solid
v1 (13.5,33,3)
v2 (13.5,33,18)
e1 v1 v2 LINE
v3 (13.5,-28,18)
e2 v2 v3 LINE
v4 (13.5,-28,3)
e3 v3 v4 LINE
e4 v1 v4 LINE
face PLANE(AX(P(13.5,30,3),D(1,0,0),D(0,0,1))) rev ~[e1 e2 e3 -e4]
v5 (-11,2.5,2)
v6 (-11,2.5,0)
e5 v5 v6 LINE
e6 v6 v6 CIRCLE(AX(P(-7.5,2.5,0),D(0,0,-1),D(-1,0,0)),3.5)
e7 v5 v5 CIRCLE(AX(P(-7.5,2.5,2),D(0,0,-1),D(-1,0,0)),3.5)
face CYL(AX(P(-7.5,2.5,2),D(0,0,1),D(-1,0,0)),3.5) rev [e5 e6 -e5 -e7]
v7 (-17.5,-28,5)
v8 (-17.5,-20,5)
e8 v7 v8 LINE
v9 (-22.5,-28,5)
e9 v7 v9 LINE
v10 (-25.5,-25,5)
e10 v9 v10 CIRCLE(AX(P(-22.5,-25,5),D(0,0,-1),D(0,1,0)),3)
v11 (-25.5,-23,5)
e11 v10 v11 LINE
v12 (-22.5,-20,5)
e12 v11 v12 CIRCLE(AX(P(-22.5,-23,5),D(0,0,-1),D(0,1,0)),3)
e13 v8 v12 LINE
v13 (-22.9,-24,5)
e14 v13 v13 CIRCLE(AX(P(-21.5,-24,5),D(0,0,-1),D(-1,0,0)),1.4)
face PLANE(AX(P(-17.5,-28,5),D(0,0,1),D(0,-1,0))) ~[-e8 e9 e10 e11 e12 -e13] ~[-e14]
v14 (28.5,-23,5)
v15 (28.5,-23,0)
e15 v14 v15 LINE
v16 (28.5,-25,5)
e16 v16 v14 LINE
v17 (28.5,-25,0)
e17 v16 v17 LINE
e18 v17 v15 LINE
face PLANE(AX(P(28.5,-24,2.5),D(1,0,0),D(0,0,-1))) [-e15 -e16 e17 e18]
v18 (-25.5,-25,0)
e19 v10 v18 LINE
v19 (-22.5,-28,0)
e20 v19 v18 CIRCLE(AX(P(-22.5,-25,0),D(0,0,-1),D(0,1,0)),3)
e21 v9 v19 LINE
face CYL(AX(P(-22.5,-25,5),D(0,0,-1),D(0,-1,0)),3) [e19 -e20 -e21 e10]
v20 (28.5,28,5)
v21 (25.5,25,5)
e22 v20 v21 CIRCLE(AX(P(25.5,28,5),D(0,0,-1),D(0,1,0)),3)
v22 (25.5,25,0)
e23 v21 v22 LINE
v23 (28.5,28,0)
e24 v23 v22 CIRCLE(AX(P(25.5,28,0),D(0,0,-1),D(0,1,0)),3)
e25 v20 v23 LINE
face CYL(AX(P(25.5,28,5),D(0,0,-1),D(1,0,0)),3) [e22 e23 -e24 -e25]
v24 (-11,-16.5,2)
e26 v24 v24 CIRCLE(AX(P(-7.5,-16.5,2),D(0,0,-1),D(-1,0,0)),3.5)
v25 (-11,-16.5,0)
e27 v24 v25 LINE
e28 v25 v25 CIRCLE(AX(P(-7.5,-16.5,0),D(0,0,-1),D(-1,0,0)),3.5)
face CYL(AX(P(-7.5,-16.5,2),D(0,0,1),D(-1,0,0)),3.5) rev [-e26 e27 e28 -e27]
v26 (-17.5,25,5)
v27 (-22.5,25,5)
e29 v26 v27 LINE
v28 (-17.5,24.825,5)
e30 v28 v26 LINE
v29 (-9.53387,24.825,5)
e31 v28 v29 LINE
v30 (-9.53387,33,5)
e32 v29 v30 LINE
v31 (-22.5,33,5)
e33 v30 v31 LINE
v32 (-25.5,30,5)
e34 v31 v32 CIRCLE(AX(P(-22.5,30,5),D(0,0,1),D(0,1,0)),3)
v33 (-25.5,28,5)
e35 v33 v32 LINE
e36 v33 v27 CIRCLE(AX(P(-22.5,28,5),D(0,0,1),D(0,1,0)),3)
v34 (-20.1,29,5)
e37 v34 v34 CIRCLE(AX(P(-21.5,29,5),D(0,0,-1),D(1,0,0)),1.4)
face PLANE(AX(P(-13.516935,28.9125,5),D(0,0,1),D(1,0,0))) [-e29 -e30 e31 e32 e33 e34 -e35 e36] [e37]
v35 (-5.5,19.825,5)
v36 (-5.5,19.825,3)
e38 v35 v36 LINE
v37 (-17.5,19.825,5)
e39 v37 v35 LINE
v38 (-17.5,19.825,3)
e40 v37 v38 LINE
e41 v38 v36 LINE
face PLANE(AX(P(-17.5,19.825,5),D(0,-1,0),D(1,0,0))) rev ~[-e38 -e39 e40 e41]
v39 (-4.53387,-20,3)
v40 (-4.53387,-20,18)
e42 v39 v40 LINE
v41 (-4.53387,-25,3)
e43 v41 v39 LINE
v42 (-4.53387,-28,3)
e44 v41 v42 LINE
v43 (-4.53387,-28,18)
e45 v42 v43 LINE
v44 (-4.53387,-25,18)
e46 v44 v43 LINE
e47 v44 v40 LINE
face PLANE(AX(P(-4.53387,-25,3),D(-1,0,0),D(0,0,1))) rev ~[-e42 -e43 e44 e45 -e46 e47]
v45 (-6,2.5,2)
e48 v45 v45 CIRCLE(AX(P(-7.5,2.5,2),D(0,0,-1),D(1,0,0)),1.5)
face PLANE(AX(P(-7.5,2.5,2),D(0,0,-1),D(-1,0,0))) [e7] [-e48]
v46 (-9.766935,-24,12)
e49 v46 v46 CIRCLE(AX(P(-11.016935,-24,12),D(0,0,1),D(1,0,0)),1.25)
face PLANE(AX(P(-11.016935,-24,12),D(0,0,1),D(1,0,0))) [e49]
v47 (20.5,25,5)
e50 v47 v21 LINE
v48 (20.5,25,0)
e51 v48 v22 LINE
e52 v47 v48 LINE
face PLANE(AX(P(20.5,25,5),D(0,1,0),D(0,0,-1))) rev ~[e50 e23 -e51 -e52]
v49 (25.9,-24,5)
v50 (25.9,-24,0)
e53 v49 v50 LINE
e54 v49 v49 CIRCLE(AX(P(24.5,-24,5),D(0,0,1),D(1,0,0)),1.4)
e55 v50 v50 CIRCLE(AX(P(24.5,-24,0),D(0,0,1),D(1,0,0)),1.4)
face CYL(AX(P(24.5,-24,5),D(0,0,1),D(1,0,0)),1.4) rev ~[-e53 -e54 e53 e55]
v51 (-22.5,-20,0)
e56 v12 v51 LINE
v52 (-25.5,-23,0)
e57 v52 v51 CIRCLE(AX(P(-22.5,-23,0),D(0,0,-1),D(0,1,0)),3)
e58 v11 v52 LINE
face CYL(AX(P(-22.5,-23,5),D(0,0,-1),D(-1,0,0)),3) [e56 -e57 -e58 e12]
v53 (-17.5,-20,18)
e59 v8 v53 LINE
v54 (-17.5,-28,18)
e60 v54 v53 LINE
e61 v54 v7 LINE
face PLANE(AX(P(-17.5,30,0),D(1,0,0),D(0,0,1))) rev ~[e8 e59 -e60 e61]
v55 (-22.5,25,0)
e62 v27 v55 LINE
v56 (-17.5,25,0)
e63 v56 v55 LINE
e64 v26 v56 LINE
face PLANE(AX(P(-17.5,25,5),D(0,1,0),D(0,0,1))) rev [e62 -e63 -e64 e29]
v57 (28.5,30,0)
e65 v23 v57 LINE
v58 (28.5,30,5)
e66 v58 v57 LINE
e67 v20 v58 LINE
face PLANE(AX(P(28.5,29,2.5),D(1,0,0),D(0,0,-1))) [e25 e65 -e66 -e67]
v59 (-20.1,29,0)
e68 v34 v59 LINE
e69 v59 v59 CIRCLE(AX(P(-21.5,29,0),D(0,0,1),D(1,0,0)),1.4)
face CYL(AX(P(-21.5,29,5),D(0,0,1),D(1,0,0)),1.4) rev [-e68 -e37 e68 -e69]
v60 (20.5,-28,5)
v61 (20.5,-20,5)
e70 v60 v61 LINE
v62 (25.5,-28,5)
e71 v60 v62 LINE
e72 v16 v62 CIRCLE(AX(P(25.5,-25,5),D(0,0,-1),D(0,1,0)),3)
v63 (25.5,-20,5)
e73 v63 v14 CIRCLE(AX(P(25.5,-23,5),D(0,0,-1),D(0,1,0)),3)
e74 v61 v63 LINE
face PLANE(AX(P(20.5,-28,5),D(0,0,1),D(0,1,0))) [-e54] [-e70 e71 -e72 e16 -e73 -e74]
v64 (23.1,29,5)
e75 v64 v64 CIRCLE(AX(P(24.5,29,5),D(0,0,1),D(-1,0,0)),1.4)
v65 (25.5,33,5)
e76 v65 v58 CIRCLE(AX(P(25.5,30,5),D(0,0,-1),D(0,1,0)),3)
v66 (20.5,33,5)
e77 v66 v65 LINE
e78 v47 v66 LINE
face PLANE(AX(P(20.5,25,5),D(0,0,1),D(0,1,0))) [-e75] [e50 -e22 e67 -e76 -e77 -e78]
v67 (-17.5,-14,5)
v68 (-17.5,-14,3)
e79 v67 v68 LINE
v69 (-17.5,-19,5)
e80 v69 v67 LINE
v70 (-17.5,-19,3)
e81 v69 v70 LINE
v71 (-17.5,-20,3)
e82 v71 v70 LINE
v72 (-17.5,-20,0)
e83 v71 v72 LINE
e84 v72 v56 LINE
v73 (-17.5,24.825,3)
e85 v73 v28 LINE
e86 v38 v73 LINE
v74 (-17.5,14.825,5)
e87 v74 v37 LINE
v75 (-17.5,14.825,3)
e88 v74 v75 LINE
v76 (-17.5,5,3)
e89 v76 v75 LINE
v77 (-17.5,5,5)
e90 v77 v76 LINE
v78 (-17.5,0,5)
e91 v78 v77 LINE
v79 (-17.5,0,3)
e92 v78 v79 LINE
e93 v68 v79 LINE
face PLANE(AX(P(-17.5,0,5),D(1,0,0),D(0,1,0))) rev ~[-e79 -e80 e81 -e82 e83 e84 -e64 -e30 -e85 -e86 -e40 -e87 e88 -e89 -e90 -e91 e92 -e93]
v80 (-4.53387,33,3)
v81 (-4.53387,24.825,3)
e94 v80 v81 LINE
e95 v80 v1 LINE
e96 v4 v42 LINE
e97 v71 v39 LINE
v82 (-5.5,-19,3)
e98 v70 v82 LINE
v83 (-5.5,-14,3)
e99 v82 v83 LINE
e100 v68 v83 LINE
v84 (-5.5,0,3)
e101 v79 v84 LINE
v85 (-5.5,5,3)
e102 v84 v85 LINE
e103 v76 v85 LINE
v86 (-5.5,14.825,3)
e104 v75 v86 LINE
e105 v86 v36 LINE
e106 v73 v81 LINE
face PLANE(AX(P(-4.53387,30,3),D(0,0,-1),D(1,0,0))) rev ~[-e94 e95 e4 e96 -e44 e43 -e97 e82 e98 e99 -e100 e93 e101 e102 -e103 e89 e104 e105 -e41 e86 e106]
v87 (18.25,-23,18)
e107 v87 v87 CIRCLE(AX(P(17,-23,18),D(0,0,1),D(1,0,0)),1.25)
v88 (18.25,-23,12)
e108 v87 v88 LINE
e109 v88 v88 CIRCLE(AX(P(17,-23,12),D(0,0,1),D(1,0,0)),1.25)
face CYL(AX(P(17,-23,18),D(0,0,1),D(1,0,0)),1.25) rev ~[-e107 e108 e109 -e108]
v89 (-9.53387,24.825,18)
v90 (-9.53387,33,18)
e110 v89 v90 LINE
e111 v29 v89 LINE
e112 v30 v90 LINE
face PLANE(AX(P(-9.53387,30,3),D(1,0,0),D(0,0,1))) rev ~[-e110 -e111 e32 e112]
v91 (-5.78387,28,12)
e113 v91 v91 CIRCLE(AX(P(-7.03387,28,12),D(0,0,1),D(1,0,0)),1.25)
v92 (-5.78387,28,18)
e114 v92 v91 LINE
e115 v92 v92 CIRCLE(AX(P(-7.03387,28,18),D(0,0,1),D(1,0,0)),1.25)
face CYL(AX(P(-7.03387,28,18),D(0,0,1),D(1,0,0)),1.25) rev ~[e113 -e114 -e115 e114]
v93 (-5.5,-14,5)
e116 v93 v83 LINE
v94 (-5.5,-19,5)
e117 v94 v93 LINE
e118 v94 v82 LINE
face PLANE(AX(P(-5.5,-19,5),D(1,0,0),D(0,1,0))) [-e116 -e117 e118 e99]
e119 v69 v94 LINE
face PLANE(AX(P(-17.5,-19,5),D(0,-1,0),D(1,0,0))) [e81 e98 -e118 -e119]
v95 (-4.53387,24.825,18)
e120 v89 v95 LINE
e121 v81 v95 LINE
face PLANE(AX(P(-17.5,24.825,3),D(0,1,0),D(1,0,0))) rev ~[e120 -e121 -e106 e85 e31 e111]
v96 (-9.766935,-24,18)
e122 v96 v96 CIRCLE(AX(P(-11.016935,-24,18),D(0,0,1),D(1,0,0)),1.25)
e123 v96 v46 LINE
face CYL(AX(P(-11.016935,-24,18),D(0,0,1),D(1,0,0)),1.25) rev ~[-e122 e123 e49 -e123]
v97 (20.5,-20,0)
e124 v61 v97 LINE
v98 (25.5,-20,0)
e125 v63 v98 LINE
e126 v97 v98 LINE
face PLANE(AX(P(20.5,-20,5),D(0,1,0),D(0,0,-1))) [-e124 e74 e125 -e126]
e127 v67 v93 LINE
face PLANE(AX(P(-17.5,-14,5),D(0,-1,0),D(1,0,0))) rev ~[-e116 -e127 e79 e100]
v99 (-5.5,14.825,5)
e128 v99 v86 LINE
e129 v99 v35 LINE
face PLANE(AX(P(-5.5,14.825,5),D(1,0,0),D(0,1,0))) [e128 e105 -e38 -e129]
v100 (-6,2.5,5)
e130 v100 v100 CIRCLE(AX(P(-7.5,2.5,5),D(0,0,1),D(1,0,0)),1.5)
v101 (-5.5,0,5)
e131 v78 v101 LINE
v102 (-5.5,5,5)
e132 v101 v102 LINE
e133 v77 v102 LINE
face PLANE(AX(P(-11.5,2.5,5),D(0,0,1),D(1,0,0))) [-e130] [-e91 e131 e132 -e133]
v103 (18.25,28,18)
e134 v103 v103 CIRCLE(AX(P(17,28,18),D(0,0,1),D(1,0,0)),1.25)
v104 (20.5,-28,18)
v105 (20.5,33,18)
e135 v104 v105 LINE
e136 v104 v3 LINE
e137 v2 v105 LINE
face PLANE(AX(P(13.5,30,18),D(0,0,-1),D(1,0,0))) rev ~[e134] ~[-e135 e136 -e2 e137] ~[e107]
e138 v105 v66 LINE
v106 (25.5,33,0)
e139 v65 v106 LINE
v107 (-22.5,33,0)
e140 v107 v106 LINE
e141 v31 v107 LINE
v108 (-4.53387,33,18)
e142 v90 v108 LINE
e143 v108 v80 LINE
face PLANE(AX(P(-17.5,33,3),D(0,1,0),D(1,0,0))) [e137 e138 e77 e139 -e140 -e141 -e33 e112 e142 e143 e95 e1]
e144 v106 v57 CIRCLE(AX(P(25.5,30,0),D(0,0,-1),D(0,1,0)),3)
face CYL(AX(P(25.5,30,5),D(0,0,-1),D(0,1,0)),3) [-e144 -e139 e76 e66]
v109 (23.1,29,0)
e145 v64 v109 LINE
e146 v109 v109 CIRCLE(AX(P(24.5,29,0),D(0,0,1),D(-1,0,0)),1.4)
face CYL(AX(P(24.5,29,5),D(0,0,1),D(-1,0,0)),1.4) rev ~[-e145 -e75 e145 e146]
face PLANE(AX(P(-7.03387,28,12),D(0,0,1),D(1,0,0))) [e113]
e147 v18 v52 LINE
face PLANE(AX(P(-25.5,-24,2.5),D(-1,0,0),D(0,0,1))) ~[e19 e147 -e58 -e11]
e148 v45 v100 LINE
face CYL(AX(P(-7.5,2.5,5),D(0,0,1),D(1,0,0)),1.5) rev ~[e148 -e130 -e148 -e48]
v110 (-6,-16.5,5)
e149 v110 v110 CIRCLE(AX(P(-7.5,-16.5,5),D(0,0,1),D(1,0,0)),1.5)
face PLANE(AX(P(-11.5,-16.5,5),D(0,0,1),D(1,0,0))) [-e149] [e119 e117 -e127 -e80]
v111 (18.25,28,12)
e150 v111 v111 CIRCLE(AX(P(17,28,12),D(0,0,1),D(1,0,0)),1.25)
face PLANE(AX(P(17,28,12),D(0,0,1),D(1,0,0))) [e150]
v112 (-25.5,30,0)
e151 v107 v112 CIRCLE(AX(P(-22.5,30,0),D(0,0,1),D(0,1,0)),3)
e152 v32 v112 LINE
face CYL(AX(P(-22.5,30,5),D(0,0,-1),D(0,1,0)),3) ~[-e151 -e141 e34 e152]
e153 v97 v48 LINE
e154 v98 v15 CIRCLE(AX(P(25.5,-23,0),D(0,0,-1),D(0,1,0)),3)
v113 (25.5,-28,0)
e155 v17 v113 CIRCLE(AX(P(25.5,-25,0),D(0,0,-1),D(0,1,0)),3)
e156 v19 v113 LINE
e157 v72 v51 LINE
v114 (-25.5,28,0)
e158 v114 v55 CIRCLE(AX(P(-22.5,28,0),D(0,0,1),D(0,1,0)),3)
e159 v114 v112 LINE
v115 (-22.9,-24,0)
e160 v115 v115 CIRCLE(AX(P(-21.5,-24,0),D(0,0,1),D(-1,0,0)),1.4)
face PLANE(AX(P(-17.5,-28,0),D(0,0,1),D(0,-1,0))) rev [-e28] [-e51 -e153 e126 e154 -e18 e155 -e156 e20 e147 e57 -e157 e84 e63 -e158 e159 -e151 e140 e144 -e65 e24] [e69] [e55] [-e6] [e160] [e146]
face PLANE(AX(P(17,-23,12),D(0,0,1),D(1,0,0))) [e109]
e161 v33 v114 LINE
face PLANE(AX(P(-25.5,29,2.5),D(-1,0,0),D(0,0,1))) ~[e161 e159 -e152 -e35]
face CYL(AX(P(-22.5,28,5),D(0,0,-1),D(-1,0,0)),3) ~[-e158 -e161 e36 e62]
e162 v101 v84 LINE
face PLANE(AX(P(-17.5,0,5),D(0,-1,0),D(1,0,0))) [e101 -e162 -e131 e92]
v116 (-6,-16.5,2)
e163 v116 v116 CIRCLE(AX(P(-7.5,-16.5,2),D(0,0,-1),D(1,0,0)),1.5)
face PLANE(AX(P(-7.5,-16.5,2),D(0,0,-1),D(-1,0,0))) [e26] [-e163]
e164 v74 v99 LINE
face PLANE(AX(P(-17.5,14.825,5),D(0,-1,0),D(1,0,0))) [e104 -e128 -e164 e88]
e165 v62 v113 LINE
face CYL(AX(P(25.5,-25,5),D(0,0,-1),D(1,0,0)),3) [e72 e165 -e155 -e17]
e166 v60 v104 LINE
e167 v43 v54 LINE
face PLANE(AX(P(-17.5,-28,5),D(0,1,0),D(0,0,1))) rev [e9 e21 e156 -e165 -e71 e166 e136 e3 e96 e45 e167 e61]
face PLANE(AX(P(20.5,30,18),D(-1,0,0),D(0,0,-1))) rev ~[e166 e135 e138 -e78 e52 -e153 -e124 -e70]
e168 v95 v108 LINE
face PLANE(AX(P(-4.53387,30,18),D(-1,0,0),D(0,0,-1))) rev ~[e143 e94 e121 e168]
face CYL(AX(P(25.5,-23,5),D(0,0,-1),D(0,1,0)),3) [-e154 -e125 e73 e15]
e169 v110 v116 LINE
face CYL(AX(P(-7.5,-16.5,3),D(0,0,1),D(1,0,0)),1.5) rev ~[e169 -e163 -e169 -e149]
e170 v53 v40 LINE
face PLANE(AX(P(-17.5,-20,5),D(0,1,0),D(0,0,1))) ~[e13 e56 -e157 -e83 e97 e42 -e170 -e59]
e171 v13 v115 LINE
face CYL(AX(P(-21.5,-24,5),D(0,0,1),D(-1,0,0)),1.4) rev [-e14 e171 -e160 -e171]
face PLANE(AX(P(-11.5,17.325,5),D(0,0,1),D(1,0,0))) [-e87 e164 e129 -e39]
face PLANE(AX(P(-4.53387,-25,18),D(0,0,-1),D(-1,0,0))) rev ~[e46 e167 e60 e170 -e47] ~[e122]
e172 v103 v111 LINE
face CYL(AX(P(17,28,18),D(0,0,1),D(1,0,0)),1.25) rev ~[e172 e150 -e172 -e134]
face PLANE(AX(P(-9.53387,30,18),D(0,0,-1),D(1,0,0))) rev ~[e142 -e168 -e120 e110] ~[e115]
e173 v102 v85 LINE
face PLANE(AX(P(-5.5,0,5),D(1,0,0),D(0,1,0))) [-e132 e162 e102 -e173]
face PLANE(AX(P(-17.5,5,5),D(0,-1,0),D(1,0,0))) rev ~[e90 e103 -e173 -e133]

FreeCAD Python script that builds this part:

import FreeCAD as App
import Part
import Sketcher

V = App.Vector
Q = App.Units.Quantity


def edges_at(feature, points):
    """Names of the edges that pass closest to the given points."""
    edges = feature.Shape.Edges
    near = lambda p: min(range(len(edges)), key=lambda i: edges[i].distToShape(Part.Vertex(*p))[0])
    return sorted({f"Edge{near(p) + 1}" for p in points})


def add_polygon(sketch, points):
    """Adds a closed chain of lines whose ends are joined by coincident constraints."""
    first, n = sketch.GeometryCount, len(points)
    for a, b in zip(points, points[1:] + points[:1]):
        sketch.addGeometry(Part.LineSegment(App.Vector(*a, 0), App.Vector(*b, 0)), False)
    for i in range(n):
        sketch.addConstraint(Sketcher.Constraint("Coincident", first + i, 2, first + (i + 1) % n, 1))

doc = App.newDocument("Part")
body = doc.addObject("PartDesign::Body", "Body")

# Sketch on XY plane
sketch1 = doc.addObject("Sketcher::SketchObject", "Sketch")
body.addObject(sketch1)
sketch1.AttachmentSupport = (doc.XY_Plane, [""])
sketch1.MapMode = "FlatFace"
add_polygon(sketch1, [(-17.5, 20), (-17.5, -20), (17.5, -20), (17.5, 20)])  # lines 0-3
sketch1.addConstraint(Sketcher.Constraint("Vertical", 0))
sketch1.addConstraint(Sketcher.Constraint("Horizontal", 1))
sketch1.addConstraint(Sketcher.Constraint("Vertical", 2))
sketch1.addConstraint(Sketcher.Constraint("Horizontal", 3))
sketch1.addConstraint(Sketcher.Constraint("Symmetric", 0, 2, 2, 2, -1, 1))
sketch1.addConstraint(Sketcher.Constraint("DistanceX", 1, 1, 1, 2, Q("35 mm")))
sketch1.addConstraint(Sketcher.Constraint("DistanceY", 0, 2, 0, 1, Q("40 mm")))
pad1 = doc.addObject("PartDesign::Pad", "Pad")
body.addObject(pad1)
pad1.Profile = sketch1
pad1.Length = 3

# Sketch on XY plane
sketch2 = doc.addObject("Sketcher::SketchObject", "Sketch001")
body.addObject(sketch2)
sketch2.AttachmentSupport = (doc.XY_Plane, [""])
sketch2.MapMode = "FlatFace"
sketch2.AttachmentOffset = App.Placement(V(0, 0, 3), App.Rotation())
sketch2.addGeometry(Part.Circle(V(-7.5, 634.376712, 0), V(0, 0, 1), 2.01318), False)
sketch2.addGeometry(Part.Circle(V(-7.023581, 615.376712, 0), V(0, 0, 1), 2.01318), False)
sketch2.addGeometry(Part.Circle(V(-7.5, 2.5, 0), V(0, 0, 1), 1.5), False)
sketch2.addGeometry(Part.Circle(V(-7.5, -16.5, 0), V(0, 0, 1), 1.5), False)
sketch2.addConstraint(Sketcher.Constraint("Equal", 0, 1))
sketch2.addConstraint(Sketcher.Constraint("Equal", 2, 3))
sketch2.addConstraint(Sketcher.Constraint("Vertical", 0, 3, 2, 3))
sketch2.addConstraint(Sketcher.Constraint("Vertical", 2, 3, 3, 3))
sketch2.addConstraint(Sketcher.Constraint("Diameter", 2, Q("3 mm")))
sketch2.addConstraint(Sketcher.Constraint("DistanceY", 1, 3, 0, 3, Q("19 mm")))
sketch2.addConstraint(Sketcher.Constraint("DistanceY", 3, 3, 2, 3, Q("19 mm")))
sketch2.addConstraint(Sketcher.Constraint("DistanceX", 0, 3, -1, 1, Q("7.5 mm")))
sketch2.addConstraint(Sketcher.Constraint("DistanceY", -1, 1, 2, 3, Q("2.5 mm")))
sketch2.addConstraint(Sketcher.Constraint("Diameter", 0, Q("4.026359 mm")))
sketch2.addConstraint(Sketcher.Constraint("DistanceY", -1, 1, 0, 3, Q("634.376712 mm")))
sketch2.addConstraint(Sketcher.Constraint("DistanceX", 1, 3, -1, 1, Q("7.023581 mm")))
pocket1 = doc.addObject("PartDesign::Pocket", "Pocket")
body.addObject(pocket1)
pocket1.Profile = sketch2
pocket1.Length = 10

# Sketch on XZ plane
sketch3 = doc.addObject("Sketcher::SketchObject", "Sketch002")
body.addObject(sketch3)
sketch3.AttachmentSupport = (doc.XZ_Plane, [""])
sketch3.MapMode = "FlatFace"
sketch3.AttachmentOffset = App.Placement(V(0, 0, 20), App.Rotation())
add_polygon(sketch3, [(-17.5, 3), (-17.5, 0), (17.5, 0), (17.5, 3)])  # lines 0-3
sketch3.addConstraint(Sketcher.Constraint("Vertical", 0))
sketch3.addConstraint(Sketcher.Constraint("Horizontal", 1))
sketch3.addConstraint(Sketcher.Constraint("Vertical", 2))
sketch3.addConstraint(Sketcher.Constraint("Horizontal", 3))
sketch3.addConstraint(Sketcher.Constraint("Symmetric", 0, 2, 1, 2, -1, 1))
sketch3.addConstraint(Sketcher.Constraint("DistanceX", 1, 1, 1, 2, Q("35 mm")))
sketch3.addConstraint(Sketcher.Constraint("DistanceY", 0, 2, 0, 1, Q("3 mm")))
pad2 = doc.addObject("PartDesign::Pad", "Pad001")
body.addObject(pad2)
pad2.Profile = sketch3
pad2.Length = 5

# Sketch on XY plane
sketch4 = doc.addObject("Sketcher::SketchObject", "Sketch003")
body.addObject(sketch4)
sketch4.AttachmentSupport = (doc.XY_Plane, [""])
sketch4.MapMode = "FlatFace"
sketch4.AttachmentOffset = App.Placement(V(0, 0, 3), App.Rotation())
add_polygon(sketch4, [(13.5, 20), (13.5, -25), (17.5, -25), (17.5, 20)])  # lines 0-3
add_polygon(sketch4, [(-17.5, -20), (-17.5, -25), (-4.53387, -25), (-4.53387, -20)])  # lines 4-7
sketch4.addConstraint(Sketcher.Constraint("Vertical", 0))
sketch4.addConstraint(Sketcher.Constraint("Horizontal", 1))
sketch4.addConstraint(Sketcher.Constraint("Vertical", 2))
sketch4.addConstraint(Sketcher.Constraint("Horizontal", 3))
sketch4.addConstraint(Sketcher.Constraint("Vertical", 4))
sketch4.addConstraint(Sketcher.Constraint("Horizontal", 5))
sketch4.addConstraint(Sketcher.Constraint("Vertical", 6))
sketch4.addConstraint(Sketcher.Constraint("Horizontal", 7))
sketch4.addConstraint(Sketcher.Constraint("Symmetric", 2, 2, 7, 2, -1, 1))
sketch4.addConstraint(Sketcher.Constraint("Horizontal", 1, 2, 4, 2))
sketch4.addConstraint(Sketcher.Constraint("DistanceX", 1, 1, 1, 2, Q("4 mm")))
sketch4.addConstraint(Sketcher.Constraint("DistanceY", 0, 2, 0, 1, Q("45 mm")))
sketch4.addConstraint(Sketcher.Constraint("DistanceY", 4, 2, 4, 1, Q("5 mm")))
sketch4.addConstraint(Sketcher.Constraint("DistanceX", 4, 2, 0, 2, Q("31 mm")))
sketch4.addConstraint(Sketcher.Constraint("DistanceX", 5, 1, 5, 2, Q("12.96613 mm")))
pad3 = doc.addObject("PartDesign::Pad", "Pad002")
body.addObject(pad3)
pad3.Profile = sketch4
pad3.Length = 15

# Sketch on XZ plane
sketch5 = doc.addObject("Sketcher::SketchObject", "Sketch004")
body.addObject(sketch5)
sketch5.AttachmentSupport = (doc.XZ_Plane, [""])
sketch5.MapMode = "FlatFace"
sketch5.AttachmentOffset = App.Placement(V(0, 0, -20), App.Rotation())
add_polygon(sketch5, [(17.5, 0), (-17.5, 0), (-17.5, 3), (13.5, 3), (13.5, 18), (17.5, 18)])  # lines 0-5
sketch5.addConstraint(Sketcher.Constraint("Horizontal", 0))
sketch5.addConstraint(Sketcher.Constraint("Vertical", 1))
sketch5.addConstraint(Sketcher.Constraint("Horizontal", 2))
sketch5.addConstraint(Sketcher.Constraint("Vertical", 3))
sketch5.addConstraint(Sketcher.Constraint("Horizontal", 4))
sketch5.addConstraint(Sketcher.Constraint("Vertical", 5))
sketch5.addConstraint(Sketcher.Constraint("Symmetric", 0, 2, 5, 2, -1, 1))
sketch5.addConstraint(Sketcher.Constraint("DistanceX", 0, 2, 0, 1, Q("35 mm")))
sketch5.addConstraint(Sketcher.Constraint("DistanceX", 2, 1, 2, 2, Q("31 mm")))
sketch5.addConstraint(Sketcher.Constraint("DistanceY", 1, 1, 1, 2, Q("3 mm")))
sketch5.addConstraint(Sketcher.Constraint("DistanceY", 3, 1, 3, 2, Q("15 mm")))
pad4 = doc.addObject("PartDesign::Pad", "Pad003")
body.addObject(pad4)
pad4.Profile = sketch5
pad4.Length = 10
pad4.Reversed = True

# Sketch on XY plane
sketch6 = doc.addObject("Sketcher::SketchObject", "Sketch005")
body.addObject(sketch6)
sketch6.AttachmentSupport = (doc.XY_Plane, [""])
sketch6.MapMode = "FlatFace"
sketch6.AttachmentOffset = App.Placement(V(0, 0, 3), App.Rotation())
add_polygon(sketch6, [(-9.53387, 30), (-9.53387, 24.825), (-4.53387, 24.825), (-4.53387, 30)])  # lines 0-3
sketch6.addConstraint(Sketcher.Constraint("Vertical", 0))
sketch6.addConstraint(Sketcher.Constraint("Horizontal", 1))
sketch6.addConstraint(Sketcher.Constraint("Vertical", 2))
sketch6.addConstraint(Sketcher.Constraint("Horizontal", 3))
sketch6.addConstraint(Sketcher.Constraint("DistanceX", 1, 1, 1, 2, Q("5 mm")))
sketch6.addConstraint(Sketcher.Constraint("DistanceY", -1, 1, 2, 2, Q("30 mm")))
sketch6.addConstraint(Sketcher.Constraint("DistanceY", 0, 2, 0, 1, Q("5.175 mm")))
sketch6.addConstraint(Sketcher.Constraint("DistanceX", 0, 2, -1, 1, Q("9.53387 mm")))
pad5 = doc.addObject("PartDesign::Pad", "Pad004")
body.addObject(pad5)
pad5.Profile = sketch6
pad5.Length = 15

# Sketch on YZ plane
sketch7 = doc.addObject("Sketcher::SketchObject", "Sketch006")
body.addObject(sketch7)
sketch7.AttachmentSupport = (doc.YZ_Plane, [""])
sketch7.MapMode = "FlatFace"
sketch7.AttachmentOffset = App.Placement(V(0, 0, 17.5), App.Rotation())
add_polygon(sketch7, [(30, 18), (-25, 18), (-25, 0), (30, 0)])  # lines 0-3
sketch7.addConstraint(Sketcher.Constraint("Horizontal", 0))
sketch7.addConstraint(Sketcher.Constraint("Vertical", 1))
sketch7.addConstraint(Sketcher.Constraint("Horizontal", 2))
sketch7.addConstraint(Sketcher.Constraint("Vertical", 3))
sketch7.addConstraint(Sketcher.Constraint("PointOnObject", 1, 2, -1))
sketch7.addConstraint(Sketcher.Constraint("DistanceX", 0, 2, 0, 1, Q("55 mm")))
sketch7.addConstraint(Sketcher.Constraint("DistanceY", 1, 2, 1, 1, Q("18 mm")))
sketch7.addConstraint(Sketcher.Constraint("DistanceX", 0, 2, -1, 1, Q("25 mm")))
pad6 = doc.addObject("PartDesign::Pad", "Pad005")
body.addObject(pad6)
pad6.Profile = sketch7
pad6.Length = 3

# Sketch on XZ plane
sketch8 = doc.addObject("Sketcher::SketchObject", "Sketch007")
body.addObject(sketch8)
sketch8.AttachmentSupport = (doc.XZ_Plane, [""])
sketch8.MapMode = "FlatFace"
sketch8.AttachmentOffset = App.Placement(V(0, 0, 25), App.Rotation())
add_polygon(sketch8, [(-17.5, 18), (-17.5, 0), (20.5, 0), (20.5, 18), (13.5, 18), (13.5, 3), (-4.53387, 3), (-4.53387, 18)])  # lines 0-7
sketch8.addConstraint(Sketcher.Constraint("Vertical", 0))
sketch8.addConstraint(Sketcher.Constraint("Horizontal", 1))
sketch8.addConstraint(Sketcher.Constraint("Vertical", 2))
sketch8.addConstraint(Sketcher.Constraint("Horizontal", 3))
sketch8.addConstraint(Sketcher.Constraint("Vertical", 4))
sketch8.addConstraint(Sketcher.Constraint("Horizontal", 5))
sketch8.addConstraint(Sketcher.Constraint("Vertical", 6))
sketch8.addConstraint(Sketcher.Constraint("Horizontal", 7))
sketch8.addConstraint(Sketcher.Constraint("PointOnObject", 0, 2, -1))
sketch8.addConstraint(Sketcher.Constraint("Horizontal", 3, 2, 6, 2))
sketch8.addConstraint(Sketcher.Constraint("DistanceX", 1, 1, 1, 2, Q("38 mm")))
sketch8.addConstraint(Sketcher.Constraint("DistanceX", 3, 2, 3, 1, Q("7 mm")))
sketch8.addConstraint(Sketcher.Constraint("DistanceY", 0, 2, 0, 1, Q("18 mm")))
sketch8.addConstraint(Sketcher.Constraint("DistanceY", 4, 2, 4, 1, Q("15 mm")))
sketch8.addConstraint(Sketcher.Constraint("DistanceX", 0, 2, -1, 1, Q("17.5 mm")))
sketch8.addConstraint(Sketcher.Constraint("DistanceX", 5, 2, 5, 1, Q("18.03387 mm")))
pad7 = doc.addObject("PartDesign::Pad", "Pad006")
body.addObject(pad7)
pad7.Profile = sketch8
pad7.Length = 3

# Sketch on XZ plane
sketch9 = doc.addObject("Sketcher::SketchObject", "Sketch008")
body.addObject(sketch9)
sketch9.AttachmentSupport = (doc.XZ_Plane, [""])
sketch9.MapMode = "FlatFace"
sketch9.AttachmentOffset = App.Placement(V(0, 0, -30), App.Rotation())
add_polygon(sketch9, [(13.5, 18), (20.5, 18), (20.5, 0), (-17.5, 0), (-17.5, 3), (-9.53387, 3), (-9.53387, 18), (-4.53387, 18), (-4.53387, 3), (13.5, 3)])  # lines 0-9
sketch9.addConstraint(Sketcher.Constraint("Horizontal", 0))
sketch9.addConstraint(Sketcher.Constraint("Vertical", 1))
sketch9.addConstraint(Sketcher.Constraint("Horizontal", 2))
sketch9.addConstraint(Sketcher.Constraint("Vertical", 3))
sketch9.addConstraint(Sketcher.Constraint("Horizontal", 4))
sketch9.addConstraint(Sketcher.Constraint("Vertical", 5))
sketch9.addConstraint(Sketcher.Constraint("Horizontal", 6))
sketch9.addConstraint(Sketcher.Constraint("Vertical", 7))
sketch9.addConstraint(Sketcher.Constraint("Horizontal", 8))
sketch9.addConstraint(Sketcher.Constraint("Vertical", 9))
sketch9.addConstraint(Sketcher.Constraint("PointOnObject", 1, 2, -1))
sketch9.addConstraint(Sketcher.Constraint("Horizontal", 0, 2, 5, 2))
sketch9.addConstraint(Sketcher.Constraint("Horizontal", 4, 2, 7, 2))
sketch9.addConstraint(Sketcher.Constraint("DistanceX", 0, 1, 0, 2, Q("7 mm")))
sketch9.addConstraint(Sketcher.Constraint("DistanceX", 2, 2, 2, 1, Q("38 mm")))
sketch9.addConstraint(Sketcher.Constraint("DistanceX", 6, 1, 6, 2, Q("5 mm")))
sketch9.addConstraint(Sketcher.Constraint("DistanceY", 1, 2, 1, 1, Q("18 mm")))
sketch9.addConstraint(Sketcher.Constraint("DistanceY", 3, 1, 3, 2, Q("3 mm")))
sketch9.addConstraint(Sketcher.Constraint("DistanceX", -1, 1, 0, 2, Q("20.5 mm")))
sketch9.addConstraint(Sketcher.Constraint("DistanceX", 4, 1, 4, 2, Q("7.96613 mm")))
pad8 = doc.addObject("PartDesign::Pad", "Pad007")
body.addObject(pad8)
pad8.Profile = sketch9
pad8.Length = 3
pad8.Reversed = True

# Sketch on XY plane
sketch10 = doc.addObject("Sketcher::SketchObject", "Sketch009")
body.addObject(sketch10)
sketch10.AttachmentSupport = (doc.XY_Plane, [""])
sketch10.MapMode = "FlatFace"
sketch10.AttachmentOffset = App.Placement(V(0, 0, 18), App.Rotation())
sketch10.addGeometry(Part.Circle(V(17, -23, 0), V(0, 0, 1), 1.25), False)
sketch10.addGeometry(Part.Circle(V(17, 28, 0), V(0, 0, 1), 1.25), False)
sketch10.addGeometry(Part.Circle(V(-11.016935, -24, 0), V(0, 0, 1), 1.25), False)
sketch10.addGeometry(Part.Circle(V(-7.03387, 28, 0), V(0, 0, 1), 1.25), False)
sketch10.addConstraint(Sketcher.Constraint("Equal", 0, 1))
sketch10.addConstraint(Sketcher.Constraint("Equal", 1, 2))
sketch10.addConstraint(Sketcher.Constraint("Equal", 2, 3))
sketch10.addConstraint(Sketcher.Constraint("Horizontal", 1, 3, 3, 3))
sketch10.addConstraint(Sketcher.Constraint("Vertical", 0, 3, 1, 3))
sketch10.addConstraint(Sketcher.Constraint("Diameter", 0, Q("2.5 mm")))
sketch10.addConstraint(Sketcher.Constraint("DistanceX", -1, 1, 0, 3, Q("17 mm")))
sketch10.addConstraint(Sketcher.Constraint("DistanceY", 0, 3, -1, 1, Q("23 mm")))
sketch10.addConstraint(Sketcher.Constraint("DistanceY", -1, 1, 1, 3, Q("28 mm")))
sketch10.addConstraint(Sketcher.Constraint("DistanceY", 2, 3, -1, 1, Q("24 mm")))
sketch10.addConstraint(Sketcher.Constraint("DistanceX", 3, 3, -1, 1, Q("7.03387 mm")))
sketch10.addConstraint(Sketcher.Constraint("DistanceX", 2, 3, -1, 1, Q("11.016935 mm")))
pocket2 = doc.addObject("PartDesign::Pocket", "Pocket001")
body.addObject(pocket2)
pocket2.Profile = sketch10
pocket2.Length = 6

# Sketch on YZ plane
sketch11 = doc.addObject("Sketcher::SketchObject", "Sketch010")
body.addObject(sketch11)
sketch11.AttachmentSupport = (doc.YZ_Plane, [""])
sketch11.MapMode = "FlatFace"
sketch11.AttachmentOffset = App.Placement(V(0, 0, 20.5), App.Rotation())
add_polygon(sketch11, [(-20, 5), (-28, 5), (-28, 0), (-20, 0)])  # lines 0-3
add_polygon(sketch11, [(33, 5), (25, 5), (25, 0), (33, 0)])  # lines 4-7
sketch11.addConstraint(Sketcher.Constraint("Horizontal", 0))
sketch11.addConstraint(Sketcher.Constraint("Vertical", 1))
sketch11.addConstraint(Sketcher.Constraint("Horizontal", 2))
sketch11.addConstraint(Sketcher.Constraint("Vertical", 3))
sketch11.addConstraint(Sketcher.Constraint("Horizontal", 4))
sketch11.addConstraint(Sketcher.Constraint("Vertical", 5))
sketch11.addConstraint(Sketcher.Constraint("Horizontal", 6))
sketch11.addConstraint(Sketcher.Constraint("Vertical", 7))
sketch11.addConstraint(Sketcher.Constraint("PointOnObject", 1, 2, -1))
sketch11.addConstraint(Sketcher.Constraint("PointOnObject", 5, 2, -1))
sketch11.addConstraint(Sketcher.Constraint("Horizontal", 3, 2, 4, 2))
sketch11.addConstraint(Sketcher.Constraint("Equal", 2, 4))
sketch11.addConstraint(Sketcher.Constraint("DistanceX", 0, 2, 0, 1, Q("8 mm")))
sketch11.addConstraint(Sketcher.Constraint("DistanceY", 1, 2, 1, 1, Q("5 mm")))
sketch11.addConstraint(Sketcher.Constraint("DistanceX", 0, 2, -1, 1, Q("28 mm")))
sketch11.addConstraint(Sketcher.Constraint("DistanceX", -1, 1, 4, 2, Q("25 mm")))
pad9 = doc.addObject("PartDesign::Pad", "Pad008")
body.addObject(pad9)
pad9.Profile = sketch11
pad9.Length = 8

# Sketch on XY plane
sketch12 = doc.addObject("Sketcher::SketchObject", "Sketch011")
body.addObject(sketch12)
sketch12.AttachmentSupport = (doc.XY_Plane, [""])
sketch12.MapMode = "FlatFace"
sketch12.AttachmentOffset = App.Placement(V(0, 0, 5), App.Rotation())
sketch12.addGeometry(Part.Circle(V(24.5, -24, 0), V(0, 0, 1), 1.4), False)
sketch12.addGeometry(Part.Circle(V(24.5, 29, 0), V(0, 0, 1), 1.4), False)
sketch12.addConstraint(Sketcher.Constraint("Equal", 0, 1))
sketch12.addConstraint(Sketcher.Constraint("Vertical", 0, 3, 1, 3))
sketch12.addConstraint(Sketcher.Constraint("Diameter", 0, Q("2.8 mm")))
sketch12.addConstraint(Sketcher.Constraint("DistanceY", 0, 3, -1, 1, Q("24 mm")))
sketch12.addConstraint(Sketcher.Constraint("DistanceY", -1, 1, 1, 3, Q("29 mm")))
sketch12.addConstraint(Sketcher.Constraint("DistanceX", -1, 1, 0, 3, Q("24.5 mm")))
pocket3 = doc.addObject("PartDesign::Pocket", "Pocket002")
body.addObject(pocket3)
pocket3.Profile = sketch12
pocket3.Length = 8
doc.recompute()

datumplane = doc.addObject("PartDesign::Plane", "DatumPlane")
body.addObject(datumplane)
datumplane.AttachmentSupport = (doc.YZ_Plane, [""])
datumplane.MapMode = "FlatFace"
datumplane.AttachmentOffset = App.Placement(V(0, 0, 1.5), App.Rotation())
mirrored = doc.addObject("PartDesign::Mirrored", "Mirrored")
body.addObject(mirrored)
mirrored.Originals = [pad9, pocket3]
mirrored.MirrorPlane = (datumplane, [""])
body.Tip = mirrored

# Sketch on XY plane
sketch13 = doc.addObject("Sketcher::SketchObject", "Sketch012")
body.addObject(sketch13)
sketch13.AttachmentSupport = (doc.XY_Plane, [""])
sketch13.MapMode = "FlatFace"
sketch13.AttachmentOffset = App.Placement(V(0, 0, 3), App.Rotation())
add_polygon(sketch13, [(-17.5, 33), (-17.5, 24.825), (-9.53387, 24.825), (-9.53387, 33)])  # lines 0-3
sketch13.addConstraint(Sketcher.Constraint("Vertical", 0))
sketch13.addConstraint(Sketcher.Constraint("Horizontal", 1))
sketch13.addConstraint(Sketcher.Constraint("Vertical", 2))
sketch13.addConstraint(Sketcher.Constraint("Horizontal", 3))
sketch13.addConstraint(Sketcher.Constraint("DistanceY", -1, 1, 2, 2, Q("33 mm")))
sketch13.addConstraint(Sketcher.Constraint("DistanceX", 0, 2, -1, 1, Q("17.5 mm")))
sketch13.addConstraint(Sketcher.Constraint("DistanceY", 0, 2, 0, 1, Q("8.175 mm")))
sketch13.addConstraint(Sketcher.Constraint("DistanceX", 1, 1, 1, 2, Q("7.96613 mm")))
pad10 = doc.addObject("PartDesign::Pad", "Pad009")
body.addObject(pad10)
pad10.Profile = sketch13
pad10.Length = 2

# Sketch on XY plane
sketch14 = doc.addObject("Sketcher::SketchObject", "Sketch013")
body.addObject(sketch14)
sketch14.AttachmentSupport = (doc.XY_Plane, [""])
sketch14.MapMode = "FlatFace"
sketch14.AttachmentOffset = App.Placement(V(0, 0, 5), App.Rotation())
add_polygon(sketch14, [(-17.5, 19.825), (-17.5, 14.825), (-5.5, 14.825), (-5.5, 19.825)])  # lines 0-3
add_polygon(sketch14, [(-17.5, 5), (-17.5, 0), (-5.5, 0), (-5.5, 5)])  # lines 4-7
sketch14.addGeometry(Part.Circle(V(-7.5, 2.5, 0), V(0, 0, 1), 1.5), False)  # 8
add_polygon(sketch14, [(-17.5, -14), (-17.5, -19), (-5.5, -19), (-5.5, -14)])  # lines 9-12
sketch14.addGeometry(Part.Circle(V(-7.5, -16.5, 0), V(0, 0, 1), 1.5), False)  # 13
sketch14.addConstraint(Sketcher.Constraint("Vertical", 0))
sketch14.addConstraint(Sketcher.Constraint("Horizontal", 1))
sketch14.addConstraint(Sketcher.Constraint("Vertical", 2))
sketch14.addConstraint(Sketcher.Constraint("Horizontal", 3))
sketch14.addConstraint(Sketcher.Constraint("Vertical", 4))
sketch14.addConstraint(Sketcher.Constraint("Horizontal", 5))
sketch14.addConstraint(Sketcher.Constraint("Vertical", 6))
sketch14.addConstraint(Sketcher.Constraint("Horizontal", 7))
sketch14.addConstraint(Sketcher.Constraint("Vertical", 9))
sketch14.addConstraint(Sketcher.Constraint("Horizontal", 10))
sketch14.addConstraint(Sketcher.Constraint("Vertical", 11))
sketch14.addConstraint(Sketcher.Constraint("Horizontal", 12))
sketch14.addConstraint(Sketcher.Constraint("Equal", 8, 13))
sketch14.addConstraint(Sketcher.Constraint("PointOnObject", 4, 2, -1))
sketch14.addConstraint(Sketcher.Constraint("Vertical", 8, 3, 13, 3))
sketch14.addConstraint(Sketcher.Constraint("Vertical", 3, 2, 4, 2))
sketch14.addConstraint(Sketcher.Constraint("Vertical", 2, 2, 5, 2))
sketch14.addConstraint(Sketcher.Constraint("Vertical", 7, 2, 9, 2))
sketch14.addConstraint(Sketcher.Constraint("Vertical", 6, 2, 10, 2))
sketch14.addConstraint(Sketcher.Constraint("Equal", 2, 4))
sketch14.addConstraint(Sketcher.Constraint("Equal", 6, 9))
sketch14.addConstraint(Sketcher.Constraint("Diameter", 8, Q("3 mm")))
sketch14.addConstraint(Sketcher.Constraint("DistanceX", 1, 1, 1, 2, Q("12 mm")))
sketch14.addConstraint(Sketcher.Constraint("DistanceY", 0, 2, 0, 1, Q("5 mm")))
sketch14.addConstraint(Sketcher.Constraint("DistanceY", 9, 2, -1, 1, Q("19 mm")))
sketch14.addConstraint(Sketcher.Constraint("DistanceY", 13, 3, 8, 3, Q("19 mm")))
sketch14.addConstraint(Sketcher.Constraint("DistanceX", 0, 2, 8, 3, Q("10 mm")))
sketch14.addConstraint(Sketcher.Constraint("DistanceX", 8, 3, -1, 1, Q("7.5 mm")))
sketch14.addConstraint(Sketcher.Constraint("DistanceY", -1, 1, 8, 3, Q("2.5 mm")))
sketch14.addConstraint(Sketcher.Constraint("DistanceY", -1, 1, 0, 2, Q("14.825 mm")))
pad11 = doc.addObject("PartDesign::Pad", "Pad010")
body.addObject(pad11)
pad11.Profile = sketch14
pad11.Length = 2
pad11.Reversed = True
doc.recompute()

fillet = doc.addObject("PartDesign::Fillet", "Fillet")
body.addObject(fillet)
fillet.Base = (pad11, edges_at(pad11, [
    (-25.5, 33, 2.5),
    (-25.5, 25, 2.5),
    (-25.5, -28, 2.5),
    (-25.5, -20, 2.5),
    (28.5, 33, 2.5),
    (28.5, 25, 2.5),
    (28.5, -20, 2.5),
    (28.5, -28, 2.5),
]))
fillet.Radius = 3

# Sketch on XY plane
sketch15 = doc.addObject("Sketcher::SketchObject", "Sketch014")
body.addObject(sketch15)
sketch15.AttachmentSupport = (doc.XY_Plane, [""])
sketch15.MapMode = "FlatFace"
sketch15.AttachmentOffset = App.Placement(V(0, 0, 2), App.Rotation())
sketch15.addGeometry(Part.Circle(V(-7.5, 2.5, 0), V(0, 0, 1), 3.5), False)
sketch15.addGeometry(Part.Circle(V(-7.5, 2.5, 0), V(0, 0, 1), 1.5), False)
sketch15.addGeometry(Part.Circle(V(-7.5, -16.5, 0), V(0, 0, 1), 3.5), False)
sketch15.addGeometry(Part.Circle(V(-7.5, -16.5, 0), V(0, 0, 1), 1.5), False)
sketch15.addConstraint(Sketcher.Constraint("Coincident", 1, 3, 0, 3))
sketch15.addConstraint(Sketcher.Constraint("Coincident", 3, 3, 2, 3))
sketch15.addConstraint(Sketcher.Constraint("Equal", 0, 2))
sketch15.addConstraint(Sketcher.Constraint("Equal", 1, 3))
sketch15.addConstraint(Sketcher.Constraint("Vertical", 1, 3, 2, 3))
sketch15.addConstraint(Sketcher.Constraint("Diameter", 0, Q("7 mm")))
sketch15.addConstraint(Sketcher.Constraint("Diameter", 1, Q("3 mm")))
sketch15.addConstraint(Sketcher.Constraint("DistanceY", 2, 3, 0, 3, Q("19 mm")))
sketch15.addConstraint(Sketcher.Constraint("DistanceX", 0, 3, -1, 1, Q("7.5 mm")))
sketch15.addConstraint(Sketcher.Constraint("DistanceY", -1, 1, 0, 3, Q("2.5 mm")))
pocket4 = doc.addObject("PartDesign::Pocket", "Pocket003")
body.addObject(pocket4)
pocket4.Profile = sketch15
pocket4.Length = 2

doc.recompute()
